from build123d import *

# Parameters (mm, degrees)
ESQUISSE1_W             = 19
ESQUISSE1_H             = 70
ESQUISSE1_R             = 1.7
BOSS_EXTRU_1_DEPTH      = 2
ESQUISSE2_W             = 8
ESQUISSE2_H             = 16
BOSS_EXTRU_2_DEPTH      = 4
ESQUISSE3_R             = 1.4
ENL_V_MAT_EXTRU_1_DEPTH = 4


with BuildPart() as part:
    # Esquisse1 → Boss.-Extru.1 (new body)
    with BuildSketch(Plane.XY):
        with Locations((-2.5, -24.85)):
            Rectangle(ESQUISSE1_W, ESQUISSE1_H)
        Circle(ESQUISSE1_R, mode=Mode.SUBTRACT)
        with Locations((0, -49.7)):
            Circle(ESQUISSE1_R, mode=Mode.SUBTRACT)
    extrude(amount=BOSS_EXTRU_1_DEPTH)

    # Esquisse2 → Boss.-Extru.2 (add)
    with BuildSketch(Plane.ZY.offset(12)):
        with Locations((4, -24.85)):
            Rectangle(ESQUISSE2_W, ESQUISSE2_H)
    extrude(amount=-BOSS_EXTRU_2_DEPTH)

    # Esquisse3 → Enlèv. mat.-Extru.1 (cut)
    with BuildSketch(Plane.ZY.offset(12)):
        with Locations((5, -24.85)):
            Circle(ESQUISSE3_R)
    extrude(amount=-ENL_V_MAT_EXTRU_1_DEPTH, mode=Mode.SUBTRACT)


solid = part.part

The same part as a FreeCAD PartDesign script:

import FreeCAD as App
import Part
import Sketcher

doc = App.newDocument("Part")
body = doc.addObject("PartDesign::Body", "Body")

sketch1 = doc.addObject("Sketcher::SketchObject", "Sketch")
body.addObject(sketch1)
sketch1.AttachmentSupport = (doc.XY_Plane, [""])
sketch1.MapMode = "FlatFace"
sketch1.addGeometry([
    Part.LineSegment(App.Vector(-12, 10.15, 0), App.Vector(-12, -59.85, 0)),
    Part.LineSegment(App.Vector(-12, -59.85, 0), App.Vector(7, -59.85, 0)),
    Part.LineSegment(App.Vector(7, -59.85, 0), App.Vector(7, 10.15, 0)),
    Part.LineSegment(App.Vector(7, 10.15, 0), App.Vector(-12, 10.15, 0)),
    Part.Circle(App.Vector(0, -49.7, 0), App.Vector(0, 0, 1), 1.7),
    Part.Circle(App.Vector(0, 0, 0), App.Vector(0, 0, 1), 1.7),
], False)
sketch1.addConstraint([
    Sketcher.Constraint("Coincident", 0, 2, 1, 1),
    Sketcher.Constraint("Coincident", 1, 2, 2, 1),
    Sketcher.Constraint("Coincident", 2, 2, 3, 1),
    Sketcher.Constraint("Coincident", 3, 2, 0, 1),
    Sketcher.Constraint("Vertical", 0),
    Sketcher.Constraint("Horizontal", 1),
    Sketcher.Constraint("Vertical", 2),
    Sketcher.Constraint("Horizontal", 3),
    Sketcher.Constraint("Coincident", 5, 3, -1, 1),
    Sketcher.Constraint("Equal", 4, 5),
    Sketcher.Constraint("PointOnObject", 4, 3, -2),
    Sketcher.Constraint("Diameter", 4, 3.4),
    Sketcher.Constraint("DistanceX", 1, 1, 1, 2, 19.0),
    Sketcher.Constraint("DistanceY", 0, 2, 0, 1, 70.0),
    Sketcher.Constraint("DistanceX", 0, 2, -1, 1, 12.0),
    Sketcher.Constraint("DistanceY", 4, 3, -1, 1, 49.7),
    Sketcher.Constraint("DistanceY", 0, 2, -1, 1, 59.85),
])
pad1 = doc.addObject("PartDesign::Pad", "Pad")
body.addObject(pad1)
pad1.Profile = sketch1
pad1.Length = 2

sketch2 = doc.addObject("Sketcher::SketchObject", "Sketch001")
body.addObject(sketch2)
sketch2.AttachmentSupport = (doc.YZ_Plane, [""])
sketch2.MapMode = "FlatFace"
sketch2.AttachmentOffset = App.Placement(App.Vector(0, 0, -12), App.Rotation())
sketch2.addGeometry([
    Part.LineSegment(App.Vector(-16.85, 0, 0), App.Vector(-32.85, 0, 0)),
    Part.LineSegment(App.Vector(-32.85, 0, 0), App.Vector(-32.85, 8, 0)),
    Part.LineSegment(App.Vector(-32.85, 8, 0), App.Vector(-16.85, 8, 0)),
    Part.LineSegment(App.Vector(-16.85, 8, 0), App.Vector(-16.85, 0, 0)),
], False)
sketch2.addConstraint([
    Sketcher.Constraint("Coincident", 0, 2, 1, 1),
    Sketcher.Constraint("Coincident", 1, 2, 2, 1),
    Sketcher.Constraint("Coincident", 2, 2, 3, 1),
    Sketcher.Constraint("Coincident", 3, 2, 0, 1),
    Sketcher.Constraint("Horizontal", 0),
    Sketcher.Constraint("Vertical", 1),
    Sketcher.Constraint("Horizontal", 2),
    Sketcher.Constraint("Vertical", 3),
    Sketcher.Constraint("PointOnObject", 0, 2, -1),
    Sketcher.Constraint("DistanceX", 0, 2, 0, 1, 16.0),
    Sketcher.Constraint("DistanceY", 1, 1, 1, 2, 8.0),
    Sketcher.Constraint("DistanceX", 0, 2, -1, 1, 32.85),
])
pad2 = doc.addObject("PartDesign::Pad", "Pad001")
body.addObject(pad2)
pad2.Profile = sketch2
pad2.Length = 4

sketch3 = doc.addObject("Sketcher::SketchObject", "Sketch002")
body.addObject(sketch3)
sketch3.AttachmentSupport = (doc.YZ_Plane, [""])
sketch3.MapMode = "FlatFace"
sketch3.AttachmentOffset = App.Placement(App.Vector(0, 0, -12), App.Rotation())
sketch3.addGeometry(Part.Circle(App.Vector(-24.85, 5, 0), App.Vector(0, 0, 1), 1.4), False)
sketch3.addConstraint([
    Sketcher.Constraint("Diameter", 0, 2.8),
    Sketcher.Constraint("DistanceY", -1, 1, 0, 3, 5.0),
    Sketcher.Constraint("DistanceX", 0, 3, -1, 1, 24.85),
])
pocket1 = doc.addObject("PartDesign::Pocket", "Pocket")
body.addObject(pocket1)
pocket1.Profile = sketch3
pocket1.Length = 4
pocket1.Reversed = True

doc.recompute()
